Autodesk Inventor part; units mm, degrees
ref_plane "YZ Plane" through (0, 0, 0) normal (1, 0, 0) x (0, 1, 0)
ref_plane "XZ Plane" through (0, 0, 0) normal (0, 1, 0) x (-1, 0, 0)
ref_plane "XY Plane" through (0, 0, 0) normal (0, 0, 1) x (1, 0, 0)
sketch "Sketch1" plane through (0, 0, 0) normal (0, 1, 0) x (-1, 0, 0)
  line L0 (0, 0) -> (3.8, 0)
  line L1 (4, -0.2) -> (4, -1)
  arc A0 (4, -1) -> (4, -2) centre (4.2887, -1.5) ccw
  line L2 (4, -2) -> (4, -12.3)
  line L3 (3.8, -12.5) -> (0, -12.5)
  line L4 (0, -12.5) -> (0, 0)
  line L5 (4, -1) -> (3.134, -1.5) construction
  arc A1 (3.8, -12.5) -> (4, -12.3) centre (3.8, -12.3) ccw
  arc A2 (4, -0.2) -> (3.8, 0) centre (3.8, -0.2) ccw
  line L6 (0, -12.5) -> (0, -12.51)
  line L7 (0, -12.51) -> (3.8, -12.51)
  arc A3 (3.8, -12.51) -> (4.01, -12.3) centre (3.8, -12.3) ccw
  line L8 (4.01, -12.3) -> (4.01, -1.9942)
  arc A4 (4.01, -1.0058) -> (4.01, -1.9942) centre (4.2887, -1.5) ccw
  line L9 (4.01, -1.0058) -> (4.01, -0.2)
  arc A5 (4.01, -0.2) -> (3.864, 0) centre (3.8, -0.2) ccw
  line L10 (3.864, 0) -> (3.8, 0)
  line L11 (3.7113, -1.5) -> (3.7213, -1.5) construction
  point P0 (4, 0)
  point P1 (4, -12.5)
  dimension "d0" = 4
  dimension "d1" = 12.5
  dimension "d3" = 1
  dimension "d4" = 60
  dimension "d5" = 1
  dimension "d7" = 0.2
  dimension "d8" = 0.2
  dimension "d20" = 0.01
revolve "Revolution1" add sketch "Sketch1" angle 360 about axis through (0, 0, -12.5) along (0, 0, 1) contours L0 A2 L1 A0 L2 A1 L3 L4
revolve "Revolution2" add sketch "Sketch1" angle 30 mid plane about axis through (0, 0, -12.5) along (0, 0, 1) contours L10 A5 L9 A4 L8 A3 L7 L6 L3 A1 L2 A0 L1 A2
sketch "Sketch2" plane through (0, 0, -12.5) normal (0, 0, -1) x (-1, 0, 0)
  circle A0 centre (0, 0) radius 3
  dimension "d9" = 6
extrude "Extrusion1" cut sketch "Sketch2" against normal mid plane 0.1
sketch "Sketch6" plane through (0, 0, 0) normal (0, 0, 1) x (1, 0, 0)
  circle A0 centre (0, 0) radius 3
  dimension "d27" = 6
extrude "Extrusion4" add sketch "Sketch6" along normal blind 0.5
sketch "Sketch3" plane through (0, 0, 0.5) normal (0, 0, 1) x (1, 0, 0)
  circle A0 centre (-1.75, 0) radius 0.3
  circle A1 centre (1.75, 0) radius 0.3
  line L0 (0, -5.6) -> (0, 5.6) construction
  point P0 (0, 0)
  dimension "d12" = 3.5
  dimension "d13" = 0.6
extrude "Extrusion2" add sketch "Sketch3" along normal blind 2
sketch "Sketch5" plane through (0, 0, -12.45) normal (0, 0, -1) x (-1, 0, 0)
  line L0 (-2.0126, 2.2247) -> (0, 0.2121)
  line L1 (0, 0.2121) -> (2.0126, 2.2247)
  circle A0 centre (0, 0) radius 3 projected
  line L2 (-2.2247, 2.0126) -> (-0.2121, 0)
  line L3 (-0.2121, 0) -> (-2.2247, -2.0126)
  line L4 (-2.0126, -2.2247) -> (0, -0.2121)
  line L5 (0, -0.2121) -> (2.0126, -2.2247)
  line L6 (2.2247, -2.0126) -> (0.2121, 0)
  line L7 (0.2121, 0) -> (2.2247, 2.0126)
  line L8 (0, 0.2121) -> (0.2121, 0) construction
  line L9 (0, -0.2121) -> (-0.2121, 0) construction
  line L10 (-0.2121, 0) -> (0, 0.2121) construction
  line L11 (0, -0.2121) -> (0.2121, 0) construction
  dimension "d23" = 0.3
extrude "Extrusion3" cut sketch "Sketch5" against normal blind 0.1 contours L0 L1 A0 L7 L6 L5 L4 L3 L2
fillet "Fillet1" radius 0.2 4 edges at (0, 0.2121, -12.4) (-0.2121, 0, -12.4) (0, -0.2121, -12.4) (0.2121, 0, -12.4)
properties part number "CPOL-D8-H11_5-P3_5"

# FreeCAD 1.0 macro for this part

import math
import FreeCAD as App
import Part
import Sketcher
from FreeCAD import Vector


def edges_at(feature, points):
    """Names of the edges that pass closest to the given points."""
    edges = feature.Shape.Edges
    near = lambda p: min(range(len(edges)), key=lambda i: edges[i].distToShape(Part.Vertex(*p))[0])
    return sorted({f"Edge{near(p) + 1}" for p in points})

doc = App.newDocument("Part")
body = doc.addObject("PartDesign::Body", "Body")

# Sketch on XZ plane
sketch1 = body.newObject("Sketcher::SketchObject", "Sketch")
sketch1.AttachmentSupport = (doc.getObject("XZ_Plane"), [""])
sketch1.MapMode = "FlatFace"
sketch1.addGeometry(Part.LineSegment(Vector(-3.8, 0, 0), Vector(0, 0, 0)), False)
sketch1.addGeometry(Part.LineSegment(Vector(0, 0, 0), Vector(0, -12.5, 0)), False)
sketch1.addGeometry(Part.LineSegment(Vector(0, -12.5, 0), Vector(-3.8, -12.5, 0)), False)
sketch1.addGeometry(Part.ArcOfCircle(Part.Circle(Vector(-3.8, -12.3, 0), Vector(0, 0, 1), 0.2), math.radians(180), math.radians(270)), False)
sketch1.addGeometry(Part.LineSegment(Vector(-4, -12.3, 0), Vector(-4, -2, 0)), False)
sketch1.addGeometry(Part.ArcOfCircle(Part.Circle(Vector(-4.29, -1.5, 0), Vector(0, 0, 1), 0.58), math.radians(-60), math.radians(60)), False)
sketch1.addGeometry(Part.LineSegment(Vector(-4, -1, 0), Vector(-4, -0.2, 0)), False)
sketch1.addGeometry(Part.ArcOfCircle(Part.Circle(Vector(-3.8, -0.2, 0), Vector(0, 0, 1), 0.2), math.radians(90), math.radians(180)), False)
sketch1.addConstraint(Sketcher.Constraint("Coincident", 0, 2, 1, 1))
sketch1.addConstraint(Sketcher.Constraint("Coincident", 1, 2, 2, 1))
sketch1.addConstraint(Sketcher.Constraint("Tangent", 2, 2, 3, 2))
sketch1.addConstraint(Sketcher.Constraint("Tangent", 3, 1, 4, 1))
sketch1.addConstraint(Sketcher.Constraint("Coincident", 4, 2, 5, 1))
sketch1.addConstraint(Sketcher.Constraint("Coincident", 5, 2, 6, 1))
sketch1.addConstraint(Sketcher.Constraint("Tangent", 6, 2, 7, 2))
sketch1.addConstraint(Sketcher.Constraint("Tangent", 7, 1, 0, 1))
sketch1.addConstraint(Sketcher.Constraint("Horizontal", 0))
sketch1.addConstraint(Sketcher.Constraint("Vertical", 1))
sketch1.addConstraint(Sketcher.Constraint("Horizontal", 2))
sketch1.addConstraint(Sketcher.Constraint("Vertical", 4))
sketch1.addConstraint(Sketcher.Constraint("Vertical", 6))
sketch1.addConstraint(Sketcher.Constraint("Coincident", 0, 2, -1, 1))
sketch1.addConstraint(Sketcher.Constraint("Equal", 3, 7))
sketch1.addConstraint(Sketcher.Constraint("Vertical", 3, 3, 7, 3))
sketch1.addConstraint(Sketcher.Constraint("Radius", 3, 0.2))
sketch1.addConstraint(Sketcher.Constraint("DistanceY", 1, 2, 1, 1, 12.5))
sketch1.addConstraint(Sketcher.Constraint("DistanceX", 3, 1, -1, 1, 4.0))
sketch1.addConstraint(Sketcher.Constraint("DistanceY", 5, 2, -1, 1, 1.0))
sketch1.addConstraint(Sketcher.Constraint("DistanceY", 4, 2, 5, 2, 1.0))
sketch1.addConstraint(Sketcher.Constraint("Radius", 5, 0.5774))
revolution = body.newObject("PartDesign::Revolution", "Revolution")
revolution.Profile = sketch1
revolution.ReferenceAxis = (sketch1, ["V_Axis"])
revolution.Angle = 360

# Sketch on XZ plane
sketch2 = body.newObject("Sketcher::SketchObject", "Sketch001")
sketch2.AttachmentSupport = (doc.getObject("XZ_Plane"), [""])
sketch2.MapMode = "FlatFace"
sketch2.addGeometry(Part.LineSegment(Vector(-3.864, 0, 0), Vector(-3.8, 0, 0)), False)
sketch2.addGeometry(Part.ArcOfCircle(Part.Circle(Vector(-3.8, -0.2, 0), Vector(0, 0, 1), 0.2), math.radians(90), math.radians(180)), False)
sketch2.addGeometry(Part.LineSegment(Vector(-4, -0.2, 0), Vector(-4, -1, 0)), False)
sketch2.addGeometry(Part.ArcOfCircle(Part.Circle(Vector(-4.289, -1.5, 0), Vector(0, 0, 1), 0.577), math.radians(-60), math.radians(60)), False)
sketch2.addGeometry(Part.LineSegment(Vector(-4, -2, 0), Vector(-4, -12.3, 0)), False)
sketch2.addGeometry(Part.ArcOfCircle(Part.Circle(Vector(-3.8, -12.3, 0), Vector(0, 0, 1), 0.2), math.radians(180), math.radians(270)), False)
sketch2.addGeometry(Part.LineSegment(Vector(-3.8, -12.5, 0), Vector(0, -12.5, 0)), False)
sketch2.addGeometry(Part.LineSegment(Vector(0, -12.5, 0), Vector(0, -12.51, 0)), False)
sketch2.addGeometry(Part.LineSegment(Vector(0, -12.51, 0), Vector(-3.8, -12.51, 0)), False)
sketch2.addGeometry(Part.ArcOfCircle(Part.Circle(Vector(-3.8, -12.3, 0), Vector(0, 0, 1), 0.21), math.radians(180), math.radians(270)), False)
sketch2.addGeometry(Part.LineSegment(Vector(-4.01, -12.3, 0), Vector(-4.01, -1.994, 0)), False)
sketch2.addGeometry(Part.ArcOfCircle(Part.Circle(Vector(-4.289, -1.5, 0), Vector(0, 0, 1), 0.567), math.radians(-61), math.radians(61)), False)
sketch2.addGeometry(Part.LineSegment(Vector(-4.01, -1.006, 0), Vector(-4.01, -0.2, 0)), False)
sketch2.addGeometry(Part.ArcOfCircle(Part.Circle(Vector(-3.8, -0.2, 0), Vector(0, 0, 1), 0.21), math.radians(108), math.radians(180)), False)
sketch2.addConstraint(Sketcher.Constraint("Tangent", 0, 2, 1, 1))
sketch2.addConstraint(Sketcher.Constraint("Tangent", 1, 2, 2, 1))
sketch2.addConstraint(Sketcher.Constraint("Coincident", 2, 2, 3, 2))
sketch2.addConstraint(Sketcher.Constraint("Coincident", 3, 1, 4, 1))
sketch2.addConstraint(Sketcher.Constraint("Tangent", 4, 2, 5, 1))
sketch2.addConstraint(Sketcher.Constraint("Tangent", 5, 2, 6, 1))
sketch2.addConstraint(Sketcher.Constraint("Coincident", 6, 2, 7, 1))
sketch2.addConstraint(Sketcher.Constraint("Coincident", 7, 2, 8, 1))
sketch2.addConstraint(Sketcher.Constraint("Tangent", 8, 2, 9, 2))
sketch2.addConstraint(Sketcher.Constraint("Tangent", 9, 1, 10, 1))
sketch2.addConstraint(Sketcher.Constraint("Coincident", 10, 2, 11, 1))
sketch2.addConstraint(Sketcher.Constraint("Coincident", 11, 2, 12, 1))
sketch2.addConstraint(Sketcher.Constraint("Tangent", 12, 2, 13, 2))
sketch2.addConstraint(Sketcher.Constraint("Coincident", 13, 1, 0, 1))
sketch2.addConstraint(Sketcher.Constraint("Horizontal", 0))
sketch2.addConstraint(Sketcher.Constraint("Vertical", 2))
sketch2.addConstraint(Sketcher.Constraint("Vertical", 4))
sketch2.addConstraint(Sketcher.Constraint("Horizontal", 6))
sketch2.addConstraint(Sketcher.Constraint("Vertical", 7))
sketch2.addConstraint(Sketcher.Constraint("Horizontal", 8))
sketch2.addConstraint(Sketcher.Constraint("Vertical", 10))
sketch2.addConstraint(Sketcher.Constraint("Vertical", 12))
sketch2.addConstraint(Sketcher.Constraint("Coincident", 9, 3, 5, 3))
sketch2.addConstraint(Sketcher.Constraint("Coincident", 11, 3, 3, 3))
sketch2.addConstraint(Sketcher.Constraint("Coincident", 13, 3, 1, 3))
sketch2.addConstraint(Sketcher.Constraint("Equal", 1, 5))
sketch2.addConstraint(Sketcher.Constraint("Equal", 9, 13))
sketch2.addConstraint(Sketcher.Constraint("PointOnObject", 0, 2, -1))
sketch2.addConstraint(Sketcher.Constraint("PointOnObject", 6, 2, -2))
sketch2.addConstraint(Sketcher.Constraint("Vertical", 1, 3, 5, 3))
sketch2.addConstraint(Sketcher.Constraint("Radius", 1, 0.2))
sketch2.addConstraint(Sketcher.Constraint("DistanceX", 1, 2, -1, 1, 4.0))
sketch2.addConstraint(Sketcher.Constraint("DistanceY", 2, 2, -1, 1, 1.0))
sketch2.addConstraint(Sketcher.Constraint("DistanceY", 3, 1, 2, 2, 1.0))
sketch2.addConstraint(Sketcher.Constraint("DistanceY", 7, 2, 7, 1, 0.01))
sketch2.addConstraint(Sketcher.Constraint("DistanceY", 5, 2, -1, 1, 12.5))
sketch2.addConstraint(Sketcher.Constraint("Radius", 3, 0.5774))
sketch2.addConstraint(Sketcher.Constraint("Radius", 11, 0.5674))
revolution2 = body.newObject("PartDesign::Revolution", "Revolution001")
revolution2.Profile = sketch2
revolution2.ReferenceAxis = (sketch2, ["V_Axis"])
revolution2.Angle = 30
revolution2.Midplane = True

# Sketch on XY plane
sketch3 = body.newObject("Sketcher::SketchObject", "Sketch002")
sketch3.AttachmentSupport = (doc.getObject("XY_Plane"), [""])
sketch3.MapMode = "FlatFace"
sketch3.AttachmentOffset = App.Placement(Vector(0, 0, -12.5), App.Rotation())
sketch3.addGeometry(Part.Circle(Vector(0, 0, 0), Vector(0, 0, 1), 3), False)
sketch3.addConstraint(Sketcher.Constraint("Coincident", 0, 3, -1, 1))
sketch3.addConstraint(Sketcher.Constraint("Diameter", 0, 6.0))
pocket1 = body.newObject("PartDesign::Pocket", "Pocket")
pocket1.Profile = sketch3
pocket1.Length = 0.1
pocket1.Midplane = True

# Sketch on XY plane
sketch4 = body.newObject("Sketcher::SketchObject", "Sketch003")
sketch4.AttachmentSupport = (doc.getObject("XY_Plane"), [""])
sketch4.MapMode = "FlatFace"
sketch4.addGeometry(Part.Circle(Vector(0, 0, 0), Vector(0, 0, 1), 3), False)
sketch4.addConstraint(Sketcher.Constraint("Coincident", 0, 3, -1, 1))
sketch4.addConstraint(Sketcher.Constraint("Diameter", 0, 6.0))
pad1 = body.newObject("PartDesign::Pad", "Pad")
pad1.Profile = sketch4
pad1.Length = 0.5

# Sketch on XY plane
sketch5 = body.newObject("Sketcher::SketchObject", "Sketch004")
sketch5.AttachmentSupport = (doc.getObject("XY_Plane"), [""])
sketch5.MapMode = "FlatFace"
sketch5.AttachmentOffset = App.Placement(Vector(0, 0, 0.5), App.Rotation())
sketch5.addGeometry(Part.Circle(Vector(-1.75, 0, 0), Vector(0, 0, 1), 0.3), False)
sketch5.addGeometry(Part.Circle(Vector(1.75, 0, 0), Vector(0, 0, 1), 0.3), False)
sketch5.addConstraint(Sketcher.Constraint("Equal", 0, 1))
sketch5.addConstraint(Sketcher.Constraint("Symmetric", 0, 3, 1, 3, -1, 1))
sketch5.addConstraint(Sketcher.Constraint("PointOnObject", 0, 3, -1))
sketch5.addConstraint(Sketcher.Constraint("Diameter", 0, 0.6))
sketch5.addConstraint(Sketcher.Constraint("DistanceX", 0, 3, 1, 3, 3.5))
pad2 = body.newObject("PartDesign::Pad", "Pad001")
pad2.Profile = sketch5
pad2.Length = 2

# Sketch on XY plane
sketch6 = body.newObject("Sketcher::SketchObject", "Sketch005")
sketch6.AttachmentSupport = (doc.getObject("XY_Plane"), [""])
sketch6.MapMode = "FlatFace"
sketch6.AttachmentOffset = App.Placement(Vector(0, 0, -12.45), App.Rotation())
sketch6.addGeometry(Part.LineSegment(Vector(0, 0.21, 0), Vector(2.01, 2.22, 0)), False)
sketch6.addGeometry(Part.ArcOfCircle(Part.Circle(Vector(0, 0, 0), Vector(0, 0, 1), 3), math.radians(42.13), math.radians(47.87)), False)
sketch6.addGeometry(Part.LineSegment(Vector(2.22, 2.01, 0), Vector(0.21, 0, 0)), False)
sketch6.addGeometry(Part.LineSegment(Vector(0.21, 0, 0), Vector(2.22, -2.01, 0)), False)
sketch6.addGeometry(Part.ArcOfCircle(Part.Circle(Vector(0, 0, 0), Vector(0, 0, 1), 3), math.radians(-47.87), math.radians(-42.13)), False)
sketch6.addGeometry(Part.LineSegment(Vector(2.01, -2.22, 0), Vector(0, -0.21, 0)), False)
sketch6.addGeometry(Part.LineSegment(Vector(0, -0.21, 0), Vector(-2.01, -2.22, 0)), False)
sketch6.addGeometry(Part.ArcOfCircle(Part.Circle(Vector(0, 0, 0), Vector(0, 0, 1), 3), math.radians(-137.87), math.radians(-132.13)), False)
sketch6.addGeometry(Part.LineSegment(Vector(-2.22, -2.01, 0), Vector(-0.21, 0, 0)), False)
sketch6.addGeometry(Part.LineSegment(Vector(-0.21, 0, 0), Vector(-2.22, 2.01, 0)), False)
sketch6.addGeometry(Part.ArcOfCircle(Part.Circle(Vector(0, 0, 0), Vector(0, 0, 1), 3), math.radians(132.13), math.radians(137.87)), False)
sketch6.addGeometry(Part.LineSegment(Vector(-2.01, 2.22, 0), Vector(0, 0.21, 0)), False)
sketch6.addConstraint(Sketcher.Constraint("Coincident", 0, 2, 1, 2))
sketch6.addConstraint(Sketcher.Constraint("Coincident", 1, 1, 2, 1))
sketch6.addConstraint(Sketcher.Constraint("Coincident", 2, 2, 3, 1))
sketch6.addConstraint(Sketcher.Constraint("Coincident", 3, 2, 4, 2))
sketch6.addConstraint(Sketcher.Constraint("Coincident", 4, 1, 5, 1))
sketch6.addConstraint(Sketcher.Constraint("Coincident", 5, 2, 6, 1))
sketch6.addConstraint(Sketcher.Constraint("Coincident", 6, 2, 7, 2))
sketch6.addConstraint(Sketcher.Constraint("Coincident", 7, 1, 8, 1))
sketch6.addConstraint(Sketcher.Constraint("Coincident", 8, 2, 9, 1))
sketch6.addConstraint(Sketcher.Constraint("Coincident", 9, 2, 10, 2))
sketch6.addConstraint(Sketcher.Constraint("Coincident", 10, 1, 11, 1))
sketch6.addConstraint(Sketcher.Constraint("Coincident", 11, 2, 0, 1))
sketch6.addConstraint(Sketcher.Constraint("Coincident", 1, 3, -1, 1))
sketch6.addConstraint(Sketcher.Constraint("Coincident", 4, 3, -1, 1))
sketch6.addConstraint(Sketcher.Constraint("Coincident", 7, 3, -1, 1))
sketch6.addConstraint(Sketcher.Constraint("Coincident", 10, 3, -1, 1))
sketch6.addConstraint(Sketcher.Constraint("Equal", 1, 4))
sketch6.addConstraint(Sketcher.Constraint("Equal", 4, 7))
sketch6.addConstraint(Sketcher.Constraint("Equal", 7, 10))
sketch6.addConstraint(Sketcher.Constraint("Symmetric", 2, 2, 8, 2, -1, 1))
sketch6.addConstraint(Sketcher.Constraint("Symmetric", 5, 2, 11, 2, -1, 1))
sketch6.addConstraint(Sketcher.Constraint("PointOnObject", 2, 2, -1))
sketch6.addConstraint(Sketcher.Constraint("PointOnObject", 5, 2, -2))
sketch6.addConstraint(Sketcher.Constraint("Parallel", 0, 2))
sketch6.addConstraint(Sketcher.Constraint("Perpendicular", 2, 3))
sketch6.addConstraint(Sketcher.Constraint("Parallel", 3, 5))
sketch6.addConstraint(Sketcher.Constraint("Perpendicular", 5, 6))
sketch6.addConstraint(Sketcher.Constraint("Parallel", 6, 8))
sketch6.addConstraint(Sketcher.Constraint("Perpendicular", 8, 9))
sketch6.addConstraint(Sketcher.Constraint("Parallel", 9, 11))
sketch6.addConstraint(Sketcher.Constraint("Horizontal", 4, 1, 6, 2))
sketch6.addConstraint(Sketcher.Constraint("Equal", 0, 2))
sketch6.addConstraint(Sketcher.Constraint("Radius", 1, 3.0))
sketch6.addConstraint(Sketcher.Constraint("DistanceX", -1, 1, 2, 2, 0.212))
pocket2 = body.newObject("PartDesign::Pocket", "Pocket001")
pocket2.Profile = sketch6
pocket2.Length = 0.1
pocket2.Reversed = True
doc.recompute()

fillet = body.newObject("PartDesign::Fillet", "Fillet")
fillet.Base = (pocket2, edges_at(pocket2, [
    (0, 0.212, -12.4),
    (-0.212, 0, -12.4),
    (0, -0.212, -12.4),
    (0.212, 0, -12.4),
]))
fillet.Radius = 0.2

doc.recompute()
